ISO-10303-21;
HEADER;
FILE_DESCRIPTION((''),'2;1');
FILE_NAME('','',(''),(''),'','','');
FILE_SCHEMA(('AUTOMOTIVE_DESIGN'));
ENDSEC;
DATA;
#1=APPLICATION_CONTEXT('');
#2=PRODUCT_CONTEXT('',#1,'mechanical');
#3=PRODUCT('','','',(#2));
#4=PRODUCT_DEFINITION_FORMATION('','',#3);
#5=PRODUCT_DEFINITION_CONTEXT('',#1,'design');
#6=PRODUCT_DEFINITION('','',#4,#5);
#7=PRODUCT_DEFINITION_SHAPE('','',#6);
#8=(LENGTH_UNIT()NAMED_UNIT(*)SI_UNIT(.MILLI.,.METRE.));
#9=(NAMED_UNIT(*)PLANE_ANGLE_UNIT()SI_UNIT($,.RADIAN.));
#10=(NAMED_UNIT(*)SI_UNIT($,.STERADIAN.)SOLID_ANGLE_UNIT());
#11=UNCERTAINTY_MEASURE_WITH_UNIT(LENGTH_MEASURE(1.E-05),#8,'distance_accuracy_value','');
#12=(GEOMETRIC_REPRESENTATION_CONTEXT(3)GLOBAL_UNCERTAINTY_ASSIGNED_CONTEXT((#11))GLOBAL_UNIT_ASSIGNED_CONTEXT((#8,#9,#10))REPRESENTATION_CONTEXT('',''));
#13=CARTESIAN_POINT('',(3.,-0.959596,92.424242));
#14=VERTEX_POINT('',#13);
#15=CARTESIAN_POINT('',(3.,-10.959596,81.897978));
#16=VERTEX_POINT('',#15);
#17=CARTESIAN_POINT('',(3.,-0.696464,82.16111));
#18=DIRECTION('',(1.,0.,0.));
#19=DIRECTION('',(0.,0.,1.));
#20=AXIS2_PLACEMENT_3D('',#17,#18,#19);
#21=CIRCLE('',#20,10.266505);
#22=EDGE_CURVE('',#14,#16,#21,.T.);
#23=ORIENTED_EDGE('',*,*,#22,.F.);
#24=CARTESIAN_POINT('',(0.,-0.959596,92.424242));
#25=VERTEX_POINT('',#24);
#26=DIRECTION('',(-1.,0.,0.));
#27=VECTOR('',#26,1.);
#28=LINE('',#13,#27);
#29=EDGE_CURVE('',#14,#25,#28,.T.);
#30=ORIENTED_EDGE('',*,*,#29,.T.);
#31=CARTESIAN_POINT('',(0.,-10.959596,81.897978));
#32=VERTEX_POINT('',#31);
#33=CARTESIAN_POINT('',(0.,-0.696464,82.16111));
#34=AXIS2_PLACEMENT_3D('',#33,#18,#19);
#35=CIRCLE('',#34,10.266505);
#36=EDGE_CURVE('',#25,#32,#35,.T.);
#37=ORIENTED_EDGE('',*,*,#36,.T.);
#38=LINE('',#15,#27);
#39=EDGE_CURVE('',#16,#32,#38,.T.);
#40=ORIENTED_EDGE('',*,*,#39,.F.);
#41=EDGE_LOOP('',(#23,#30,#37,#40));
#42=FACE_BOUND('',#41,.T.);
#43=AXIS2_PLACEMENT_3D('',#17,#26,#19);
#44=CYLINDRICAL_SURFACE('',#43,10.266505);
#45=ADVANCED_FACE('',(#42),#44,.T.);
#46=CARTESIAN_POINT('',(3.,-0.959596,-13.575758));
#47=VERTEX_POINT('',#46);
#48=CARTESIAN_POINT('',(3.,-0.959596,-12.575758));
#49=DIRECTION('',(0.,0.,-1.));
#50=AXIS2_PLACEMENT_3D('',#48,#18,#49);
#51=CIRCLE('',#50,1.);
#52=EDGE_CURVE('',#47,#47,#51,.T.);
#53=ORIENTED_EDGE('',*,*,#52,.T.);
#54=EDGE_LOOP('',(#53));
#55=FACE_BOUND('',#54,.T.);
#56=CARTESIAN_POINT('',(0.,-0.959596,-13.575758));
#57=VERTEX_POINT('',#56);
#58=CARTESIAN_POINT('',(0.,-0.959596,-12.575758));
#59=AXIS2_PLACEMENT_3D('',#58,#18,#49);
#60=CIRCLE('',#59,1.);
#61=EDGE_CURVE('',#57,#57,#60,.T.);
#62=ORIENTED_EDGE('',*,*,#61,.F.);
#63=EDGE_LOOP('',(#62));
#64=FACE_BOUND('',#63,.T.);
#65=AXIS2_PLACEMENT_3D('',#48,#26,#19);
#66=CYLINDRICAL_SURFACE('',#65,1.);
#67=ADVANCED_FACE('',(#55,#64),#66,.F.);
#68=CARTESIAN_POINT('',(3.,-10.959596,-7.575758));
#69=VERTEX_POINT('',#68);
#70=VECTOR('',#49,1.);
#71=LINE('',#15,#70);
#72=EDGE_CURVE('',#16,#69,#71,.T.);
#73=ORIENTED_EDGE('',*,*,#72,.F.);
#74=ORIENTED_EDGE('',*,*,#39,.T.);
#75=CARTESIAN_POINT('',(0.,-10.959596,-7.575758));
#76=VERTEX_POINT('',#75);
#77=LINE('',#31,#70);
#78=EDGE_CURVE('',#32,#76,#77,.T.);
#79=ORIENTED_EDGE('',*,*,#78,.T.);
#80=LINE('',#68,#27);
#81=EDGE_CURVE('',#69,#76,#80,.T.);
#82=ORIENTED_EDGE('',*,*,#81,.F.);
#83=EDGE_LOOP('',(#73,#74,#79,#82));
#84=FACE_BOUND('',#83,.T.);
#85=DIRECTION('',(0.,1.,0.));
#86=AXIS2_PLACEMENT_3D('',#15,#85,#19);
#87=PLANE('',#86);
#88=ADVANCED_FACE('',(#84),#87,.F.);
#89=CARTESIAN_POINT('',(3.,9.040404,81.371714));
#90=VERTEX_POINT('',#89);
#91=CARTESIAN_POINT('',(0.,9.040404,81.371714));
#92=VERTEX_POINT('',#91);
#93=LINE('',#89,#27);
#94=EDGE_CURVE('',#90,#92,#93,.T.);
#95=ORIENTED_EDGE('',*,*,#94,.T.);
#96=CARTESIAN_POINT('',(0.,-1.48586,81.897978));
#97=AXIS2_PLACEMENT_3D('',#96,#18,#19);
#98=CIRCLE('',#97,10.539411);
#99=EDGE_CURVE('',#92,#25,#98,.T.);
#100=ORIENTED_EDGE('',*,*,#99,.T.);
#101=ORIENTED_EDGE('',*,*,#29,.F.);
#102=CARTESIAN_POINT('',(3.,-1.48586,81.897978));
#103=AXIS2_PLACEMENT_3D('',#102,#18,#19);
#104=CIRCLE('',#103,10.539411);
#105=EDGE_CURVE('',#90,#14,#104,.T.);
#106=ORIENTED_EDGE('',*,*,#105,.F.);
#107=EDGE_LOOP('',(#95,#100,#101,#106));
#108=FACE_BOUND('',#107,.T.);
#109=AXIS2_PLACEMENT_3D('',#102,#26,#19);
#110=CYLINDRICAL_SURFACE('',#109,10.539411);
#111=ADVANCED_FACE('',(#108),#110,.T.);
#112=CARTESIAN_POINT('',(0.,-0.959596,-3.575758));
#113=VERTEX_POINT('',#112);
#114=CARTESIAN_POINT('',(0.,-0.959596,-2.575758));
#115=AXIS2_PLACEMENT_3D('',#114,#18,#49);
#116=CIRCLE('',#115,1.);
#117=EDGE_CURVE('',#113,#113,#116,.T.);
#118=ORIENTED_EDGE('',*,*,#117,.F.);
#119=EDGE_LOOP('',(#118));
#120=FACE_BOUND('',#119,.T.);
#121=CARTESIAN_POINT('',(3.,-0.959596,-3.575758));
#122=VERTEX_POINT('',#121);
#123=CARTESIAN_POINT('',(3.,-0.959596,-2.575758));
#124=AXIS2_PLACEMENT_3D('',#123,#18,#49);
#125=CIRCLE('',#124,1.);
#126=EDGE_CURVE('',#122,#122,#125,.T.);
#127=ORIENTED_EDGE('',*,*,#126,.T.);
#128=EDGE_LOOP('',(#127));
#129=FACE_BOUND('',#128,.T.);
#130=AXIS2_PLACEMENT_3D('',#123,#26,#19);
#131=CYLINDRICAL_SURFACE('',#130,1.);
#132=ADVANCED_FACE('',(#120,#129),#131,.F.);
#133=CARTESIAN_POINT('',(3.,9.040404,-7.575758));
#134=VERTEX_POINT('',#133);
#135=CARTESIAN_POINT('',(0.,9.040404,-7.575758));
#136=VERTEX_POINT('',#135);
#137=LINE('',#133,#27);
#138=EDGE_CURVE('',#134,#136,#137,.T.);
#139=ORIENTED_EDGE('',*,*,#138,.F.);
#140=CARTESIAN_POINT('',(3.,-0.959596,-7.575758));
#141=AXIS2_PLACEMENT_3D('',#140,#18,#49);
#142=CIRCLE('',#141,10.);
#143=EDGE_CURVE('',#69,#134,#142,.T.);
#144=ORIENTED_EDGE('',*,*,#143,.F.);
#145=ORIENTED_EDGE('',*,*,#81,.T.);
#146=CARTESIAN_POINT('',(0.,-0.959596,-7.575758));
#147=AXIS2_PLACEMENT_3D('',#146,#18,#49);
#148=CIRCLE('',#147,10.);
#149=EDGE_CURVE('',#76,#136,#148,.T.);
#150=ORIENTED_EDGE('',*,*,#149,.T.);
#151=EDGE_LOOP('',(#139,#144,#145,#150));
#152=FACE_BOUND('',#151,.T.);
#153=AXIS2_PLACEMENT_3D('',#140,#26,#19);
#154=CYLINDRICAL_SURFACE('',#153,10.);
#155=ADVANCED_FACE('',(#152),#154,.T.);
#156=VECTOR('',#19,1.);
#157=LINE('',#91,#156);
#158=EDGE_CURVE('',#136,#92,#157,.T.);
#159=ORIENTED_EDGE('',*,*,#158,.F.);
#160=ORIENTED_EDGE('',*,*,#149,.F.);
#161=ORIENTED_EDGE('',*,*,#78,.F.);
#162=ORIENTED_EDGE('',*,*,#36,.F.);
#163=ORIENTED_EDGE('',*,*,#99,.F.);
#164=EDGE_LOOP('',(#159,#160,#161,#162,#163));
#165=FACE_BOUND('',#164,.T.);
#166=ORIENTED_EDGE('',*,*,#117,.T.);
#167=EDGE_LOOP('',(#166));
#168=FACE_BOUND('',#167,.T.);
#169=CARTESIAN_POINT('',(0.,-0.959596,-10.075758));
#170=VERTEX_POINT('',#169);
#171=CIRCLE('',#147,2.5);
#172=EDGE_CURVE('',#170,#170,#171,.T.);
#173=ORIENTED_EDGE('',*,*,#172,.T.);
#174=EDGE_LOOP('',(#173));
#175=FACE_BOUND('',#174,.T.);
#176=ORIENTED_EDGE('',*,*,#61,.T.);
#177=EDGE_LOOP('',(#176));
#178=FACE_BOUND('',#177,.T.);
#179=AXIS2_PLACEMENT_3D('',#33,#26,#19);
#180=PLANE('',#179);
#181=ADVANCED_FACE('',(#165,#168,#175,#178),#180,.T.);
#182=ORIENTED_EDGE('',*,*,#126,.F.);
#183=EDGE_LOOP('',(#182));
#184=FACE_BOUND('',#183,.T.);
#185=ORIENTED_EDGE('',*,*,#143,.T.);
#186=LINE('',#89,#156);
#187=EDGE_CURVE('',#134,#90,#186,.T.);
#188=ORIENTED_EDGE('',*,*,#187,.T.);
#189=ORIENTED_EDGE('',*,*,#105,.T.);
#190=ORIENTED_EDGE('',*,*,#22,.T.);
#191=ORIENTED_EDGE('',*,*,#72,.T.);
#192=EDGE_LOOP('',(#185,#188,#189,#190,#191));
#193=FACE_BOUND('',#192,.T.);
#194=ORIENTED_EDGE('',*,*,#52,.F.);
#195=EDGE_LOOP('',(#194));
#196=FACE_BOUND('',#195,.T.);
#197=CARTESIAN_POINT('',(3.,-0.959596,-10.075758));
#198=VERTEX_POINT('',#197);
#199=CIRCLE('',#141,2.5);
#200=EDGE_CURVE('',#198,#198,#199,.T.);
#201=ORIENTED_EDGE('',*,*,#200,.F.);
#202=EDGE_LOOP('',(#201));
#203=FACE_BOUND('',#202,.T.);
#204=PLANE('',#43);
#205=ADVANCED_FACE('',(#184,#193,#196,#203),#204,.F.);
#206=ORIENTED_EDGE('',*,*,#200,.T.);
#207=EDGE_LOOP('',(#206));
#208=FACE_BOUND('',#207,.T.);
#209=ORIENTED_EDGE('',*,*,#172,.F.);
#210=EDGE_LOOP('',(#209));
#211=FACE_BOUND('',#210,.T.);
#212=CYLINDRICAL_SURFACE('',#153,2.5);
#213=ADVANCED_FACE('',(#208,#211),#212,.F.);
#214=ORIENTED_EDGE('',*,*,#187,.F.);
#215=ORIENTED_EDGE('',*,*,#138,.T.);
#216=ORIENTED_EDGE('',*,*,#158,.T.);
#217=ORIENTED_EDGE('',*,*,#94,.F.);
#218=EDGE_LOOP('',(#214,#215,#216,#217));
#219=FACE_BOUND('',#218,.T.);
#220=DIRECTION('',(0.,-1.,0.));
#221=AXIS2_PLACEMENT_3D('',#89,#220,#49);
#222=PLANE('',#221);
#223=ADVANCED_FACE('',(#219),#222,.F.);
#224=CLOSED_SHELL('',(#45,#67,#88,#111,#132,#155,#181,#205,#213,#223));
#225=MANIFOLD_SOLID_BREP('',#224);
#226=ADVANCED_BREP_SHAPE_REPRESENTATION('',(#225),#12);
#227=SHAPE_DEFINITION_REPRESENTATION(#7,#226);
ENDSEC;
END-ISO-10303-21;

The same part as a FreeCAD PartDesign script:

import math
import FreeCAD as App
import Part
import Sketcher
from FreeCAD import Vector

doc = App.newDocument("Part")
body = doc.addObject("PartDesign::Body", "Body")

sketch1 = body.newObject("Sketcher::SketchObject", "Sketch")
sketch1.AttachmentSupport = (doc.getObject("YZ_Plane"), [""])
sketch1.MapMode = "FlatFace"
sketch1.addGeometry([
    Part.LineSegment(Vector(9.040404, -7.575758, 0), Vector(9.040404, 81.371714, 0)),
    Part.ArcOfCircle(Part.Circle(Vector(-1.48586, 81.897978, 0), Vector(0, 0, 1), 10.539411), math.radians(-2.862139), math.radians(87.137861)),
    Part.ArcOfCircle(Part.Circle(Vector(-0.696464, 82.16111, 0), Vector(0, 0, 1), 10.266505), math.radians(91.468661), math.radians(181.468661)),
    Part.LineSegment(Vector(-10.959596, 81.897978, 0), Vector(-10.959596, -7.575758, 0)),
    Part.ArcOfCircle(Part.Circle(Vector(-0.959596, -7.575758, 0), Vector(0, 0, 1), 10), math.radians(-180), math.radians(-90)),
    Part.ArcOfCircle(Part.Circle(Vector(-0.959596, -7.575758, 0), Vector(0, 0, 1), 10), math.radians(-90), math.radians(0)),
    Part.Circle(Vector(-0.959596, -12.575758, 0), Vector(0, 0, 1), 1),
    Part.Circle(Vector(-0.959596, -7.575758, 0), Vector(0, 0, 1), 2.5),
    Part.Circle(Vector(-0.959596, -2.575758, 0), Vector(0, 0, 1), 1),
], False)
sketch1.addConstraint([
    Sketcher.Constraint("Coincident", 0, 2, 1, 1),
    Sketcher.Constraint("Coincident", 1, 2, 2, 1),
    Sketcher.Constraint("Coincident", 2, 2, 3, 1),
    Sketcher.Constraint("Tangent", 3, 2, 4, 1),
    Sketcher.Constraint("Tangent", 4, 2, 5, 1),
    Sketcher.Constraint("Tangent", 5, 2, 0, 1),
    Sketcher.Constraint("Vertical", 0),
    Sketcher.Constraint("Vertical", 3),
    Sketcher.Constraint("Coincident", 7, 3, 4, 3),
    Sketcher.Constraint("Equal", 4, 5),
    Sketcher.Constraint("Equal", 6, 8),
    Sketcher.Constraint("Horizontal", 1, 3, 2, 2),
    Sketcher.Constraint("Vertical", 5, 3, 6, 3),
    Sketcher.Constraint("Vertical", 7, 3, 8, 3),
    Sketcher.Constraint("Vertical", 8, 3, 1, 2),
    Sketcher.Constraint("Vertical", 1, 2, 4, 2),
    Sketcher.Constraint("Diameter", 6, 2.0),
    Sketcher.Constraint("Diameter", 7, 5.0),
    Sketcher.Constraint("Radius", 4, 10.0),
    Sketcher.Constraint("DistanceY", 6, 3, 5, 3, 5.0),
    Sketcher.Constraint("DistanceY", 4, 3, 8, 3, 5.0),
    Sketcher.Constraint("DistanceY", 8, 3, 1, 2, 95.0),
    Sketcher.Constraint("Radius", 1, 10.539411),
    Sketcher.Constraint("Radius", 2, 10.266505),
    Sketcher.Constraint("DistanceY", 0, 1, 0, 2, 88.947472),
    Sketcher.Constraint("DistanceX", 1, 3, -1, 1, 1.48586),
    Sketcher.Constraint("DistanceY", -1, 1, 1, 3, 81.897978),
])
pad1 = body.newObject("PartDesign::Pad", "Pad")
pad1.Profile = sketch1
pad1.Length = 3

doc.recompute()
